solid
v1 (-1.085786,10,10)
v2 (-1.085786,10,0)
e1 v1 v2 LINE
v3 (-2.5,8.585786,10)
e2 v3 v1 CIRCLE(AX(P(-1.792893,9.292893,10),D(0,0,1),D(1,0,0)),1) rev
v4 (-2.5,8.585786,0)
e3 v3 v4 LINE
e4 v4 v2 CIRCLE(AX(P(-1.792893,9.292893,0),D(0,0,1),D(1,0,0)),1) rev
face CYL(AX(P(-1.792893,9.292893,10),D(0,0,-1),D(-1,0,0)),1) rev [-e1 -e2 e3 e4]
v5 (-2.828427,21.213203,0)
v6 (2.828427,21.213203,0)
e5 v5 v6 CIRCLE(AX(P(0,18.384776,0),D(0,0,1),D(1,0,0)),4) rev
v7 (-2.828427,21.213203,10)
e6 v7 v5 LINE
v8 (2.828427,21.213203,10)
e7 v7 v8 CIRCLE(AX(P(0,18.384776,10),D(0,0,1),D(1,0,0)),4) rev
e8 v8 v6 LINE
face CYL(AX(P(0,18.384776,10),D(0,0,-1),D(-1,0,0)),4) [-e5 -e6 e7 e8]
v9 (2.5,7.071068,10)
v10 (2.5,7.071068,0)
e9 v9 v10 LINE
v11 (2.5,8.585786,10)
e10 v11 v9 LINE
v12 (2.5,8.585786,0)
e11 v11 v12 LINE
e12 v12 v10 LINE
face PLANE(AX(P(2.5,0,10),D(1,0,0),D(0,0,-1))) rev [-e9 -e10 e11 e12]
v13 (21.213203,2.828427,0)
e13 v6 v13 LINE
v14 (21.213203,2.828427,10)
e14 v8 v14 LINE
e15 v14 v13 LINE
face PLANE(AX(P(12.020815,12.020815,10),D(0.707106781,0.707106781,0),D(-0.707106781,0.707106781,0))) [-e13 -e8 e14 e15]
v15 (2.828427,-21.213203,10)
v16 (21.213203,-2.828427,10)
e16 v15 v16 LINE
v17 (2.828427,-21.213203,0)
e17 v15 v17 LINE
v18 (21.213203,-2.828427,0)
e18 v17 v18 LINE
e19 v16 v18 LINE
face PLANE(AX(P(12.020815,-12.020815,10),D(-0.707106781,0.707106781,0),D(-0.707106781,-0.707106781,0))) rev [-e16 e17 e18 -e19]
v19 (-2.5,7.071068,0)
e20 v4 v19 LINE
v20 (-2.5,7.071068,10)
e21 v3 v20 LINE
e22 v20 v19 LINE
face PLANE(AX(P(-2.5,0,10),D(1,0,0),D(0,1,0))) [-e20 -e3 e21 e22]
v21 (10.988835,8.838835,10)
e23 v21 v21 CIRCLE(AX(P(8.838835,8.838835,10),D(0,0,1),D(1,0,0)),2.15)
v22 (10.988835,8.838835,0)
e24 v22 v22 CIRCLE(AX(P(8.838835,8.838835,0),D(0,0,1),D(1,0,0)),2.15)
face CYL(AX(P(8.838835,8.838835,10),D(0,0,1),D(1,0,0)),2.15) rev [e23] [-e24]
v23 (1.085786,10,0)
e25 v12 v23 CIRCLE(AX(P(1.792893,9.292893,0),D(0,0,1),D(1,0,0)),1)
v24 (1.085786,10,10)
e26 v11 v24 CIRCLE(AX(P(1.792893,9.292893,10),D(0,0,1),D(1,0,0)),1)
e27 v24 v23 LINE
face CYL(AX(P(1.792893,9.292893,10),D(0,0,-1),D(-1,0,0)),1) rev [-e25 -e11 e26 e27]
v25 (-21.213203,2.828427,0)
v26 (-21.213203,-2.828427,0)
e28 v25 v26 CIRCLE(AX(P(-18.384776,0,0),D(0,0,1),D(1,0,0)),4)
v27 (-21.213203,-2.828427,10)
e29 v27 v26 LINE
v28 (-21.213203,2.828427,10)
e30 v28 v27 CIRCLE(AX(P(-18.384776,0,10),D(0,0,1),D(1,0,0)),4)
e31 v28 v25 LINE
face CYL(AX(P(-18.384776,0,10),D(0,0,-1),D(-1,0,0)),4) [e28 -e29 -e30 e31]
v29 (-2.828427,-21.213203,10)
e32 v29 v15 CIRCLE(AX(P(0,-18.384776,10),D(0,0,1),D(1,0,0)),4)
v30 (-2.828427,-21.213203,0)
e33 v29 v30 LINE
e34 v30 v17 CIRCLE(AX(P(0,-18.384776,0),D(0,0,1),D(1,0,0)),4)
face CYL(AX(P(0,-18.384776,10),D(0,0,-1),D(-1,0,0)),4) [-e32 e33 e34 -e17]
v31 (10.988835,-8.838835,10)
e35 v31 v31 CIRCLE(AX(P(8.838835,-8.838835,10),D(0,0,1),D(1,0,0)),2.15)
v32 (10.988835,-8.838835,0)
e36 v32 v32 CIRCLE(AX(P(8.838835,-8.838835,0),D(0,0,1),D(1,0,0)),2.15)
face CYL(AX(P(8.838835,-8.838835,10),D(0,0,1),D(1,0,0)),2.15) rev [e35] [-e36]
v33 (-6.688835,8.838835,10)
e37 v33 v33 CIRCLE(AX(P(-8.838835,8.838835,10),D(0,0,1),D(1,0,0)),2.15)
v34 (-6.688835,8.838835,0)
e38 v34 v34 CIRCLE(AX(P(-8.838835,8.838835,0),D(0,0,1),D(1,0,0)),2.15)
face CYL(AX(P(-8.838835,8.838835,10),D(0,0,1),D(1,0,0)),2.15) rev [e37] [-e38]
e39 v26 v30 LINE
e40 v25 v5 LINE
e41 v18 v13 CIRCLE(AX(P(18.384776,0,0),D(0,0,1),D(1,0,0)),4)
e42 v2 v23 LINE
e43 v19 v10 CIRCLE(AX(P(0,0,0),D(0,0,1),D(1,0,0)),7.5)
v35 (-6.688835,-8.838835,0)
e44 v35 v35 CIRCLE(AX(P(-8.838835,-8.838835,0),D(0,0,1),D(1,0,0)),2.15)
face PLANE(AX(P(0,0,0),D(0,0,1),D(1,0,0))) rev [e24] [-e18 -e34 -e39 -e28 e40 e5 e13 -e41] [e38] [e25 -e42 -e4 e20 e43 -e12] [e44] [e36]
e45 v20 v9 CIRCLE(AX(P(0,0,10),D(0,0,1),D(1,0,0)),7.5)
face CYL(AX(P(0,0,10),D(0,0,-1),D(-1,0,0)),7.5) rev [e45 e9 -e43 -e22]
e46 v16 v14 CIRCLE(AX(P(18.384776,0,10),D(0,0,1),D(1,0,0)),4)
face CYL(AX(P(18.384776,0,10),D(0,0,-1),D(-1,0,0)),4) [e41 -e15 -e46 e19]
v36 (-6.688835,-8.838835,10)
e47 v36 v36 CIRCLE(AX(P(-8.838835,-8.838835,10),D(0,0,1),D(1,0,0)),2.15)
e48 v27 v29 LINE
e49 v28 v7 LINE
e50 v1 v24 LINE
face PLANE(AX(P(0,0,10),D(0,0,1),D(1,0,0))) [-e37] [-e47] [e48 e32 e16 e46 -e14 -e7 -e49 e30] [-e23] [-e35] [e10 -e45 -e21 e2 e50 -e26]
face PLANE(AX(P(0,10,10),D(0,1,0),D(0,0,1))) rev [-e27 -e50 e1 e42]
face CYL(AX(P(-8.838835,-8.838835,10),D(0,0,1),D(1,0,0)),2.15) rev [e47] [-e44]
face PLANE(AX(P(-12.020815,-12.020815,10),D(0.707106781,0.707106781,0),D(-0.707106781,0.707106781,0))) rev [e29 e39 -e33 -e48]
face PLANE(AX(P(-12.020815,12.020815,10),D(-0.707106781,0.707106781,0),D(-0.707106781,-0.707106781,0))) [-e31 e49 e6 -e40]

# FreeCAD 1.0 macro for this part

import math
import FreeCAD as App
import Part
import Sketcher
from FreeCAD import Vector

doc = App.newDocument("Part")
body = doc.addObject("PartDesign::Body", "Body")

# Sketch on XY plane
sketch1 = body.newObject("Sketcher::SketchObject", "Sketch")
sketch1.AttachmentSupport = (doc.getObject("XY_Plane"), [""])
sketch1.MapMode = "FlatFace"
sketch1.addGeometry(Part.LineSegment(Vector(-21.2, -2.8, 0), Vector(-2.8, -21.2, 0)), False)
sketch1.addGeometry(Part.ArcOfCircle(Part.Circle(Vector(0, -18.4, 0), Vector(0, 0, 1), 4), math.radians(-135), math.radians(-45)), False)
sketch1.addGeometry(Part.LineSegment(Vector(2.8, -21.2, 0), Vector(21.2, -2.8, 0)), False)
sketch1.addGeometry(Part.ArcOfCircle(Part.Circle(Vector(18.4, 0, 0), Vector(0, 0, 1), 4), math.radians(-45), math.radians(45)), False)
sketch1.addGeometry(Part.LineSegment(Vector(21.2, 2.8, 0), Vector(2.8, 21.2, 0)), False)
sketch1.addGeometry(Part.ArcOfCircle(Part.Circle(Vector(0, 18.4, 0), Vector(0, 0, 1), 4), math.radians(45), math.radians(135)), False)
sketch1.addGeometry(Part.LineSegment(Vector(-2.8, 21.2, 0), Vector(-21.2, 2.8, 0)), False)
sketch1.addGeometry(Part.ArcOfCircle(Part.Circle(Vector(-18.4, 0, 0), Vector(0, 0, 1), 4), math.radians(135), math.radians(225)), False)
sketch1.addGeometry(Part.LineSegment(Vector(-2.5, 7.1, 0), Vector(-2.5, 8.6, 0)), False)
sketch1.addGeometry(Part.ArcOfCircle(Part.Circle(Vector(-1.8, 9.3, 0), Vector(0, 0, 1), 1), math.radians(45), math.radians(225)), False)
sketch1.addGeometry(Part.LineSegment(Vector(-1.1, 10, 0), Vector(1.1, 10, 0)), False)
sketch1.addGeometry(Part.ArcOfCircle(Part.Circle(Vector(1.8, 9.3, 0), Vector(0, 0, 1), 1), math.radians(-45), math.radians(135)), False)
sketch1.addGeometry(Part.LineSegment(Vector(2.5, 8.6, 0), Vector(2.5, 7.1, 0)), False)
sketch1.addGeometry(Part.ArcOfCircle(Part.Circle(Vector(0, 0, 0), Vector(0, 0, 1), 7.5), math.radians(109), math.radians(431)), False)
sketch1.addConstraint(Sketcher.Constraint("Tangent", 0, 2, 1, 1))
sketch1.addConstraint(Sketcher.Constraint("Tangent", 1, 2, 2, 1))
sketch1.addConstraint(Sketcher.Constraint("Tangent", 2, 2, 3, 1))
sketch1.addConstraint(Sketcher.Constraint("Tangent", 3, 2, 4, 1))
sketch1.addConstraint(Sketcher.Constraint("Tangent", 4, 2, 5, 1))
sketch1.addConstraint(Sketcher.Constraint("Tangent", 5, 2, 6, 1))
sketch1.addConstraint(Sketcher.Constraint("Tangent", 6, 2, 7, 1))
sketch1.addConstraint(Sketcher.Constraint("Tangent", 7, 2, 0, 1))
sketch1.addConstraint(Sketcher.Constraint("Coincident", 8, 2, 9, 2))
sketch1.addConstraint(Sketcher.Constraint("Coincident", 9, 1, 10, 1))
sketch1.addConstraint(Sketcher.Constraint("Coincident", 10, 2, 11, 2))
sketch1.addConstraint(Sketcher.Constraint("Coincident", 11, 1, 12, 1))
sketch1.addConstraint(Sketcher.Constraint("Coincident", 12, 2, 13, 2))
sketch1.addConstraint(Sketcher.Constraint("Coincident", 13, 1, 8, 1))
sketch1.addConstraint(Sketcher.Constraint("Vertical", 8))
sketch1.addConstraint(Sketcher.Constraint("Horizontal", 10))
sketch1.addConstraint(Sketcher.Constraint("Vertical", 12))
sketch1.addConstraint(Sketcher.Constraint("Coincident", 13, 3, -1, 1))
sketch1.addConstraint(Sketcher.Constraint("Equal", 1, 3))
sketch1.addConstraint(Sketcher.Constraint("Equal", 3, 5))
sketch1.addConstraint(Sketcher.Constraint("Equal", 5, 7))
sketch1.addConstraint(Sketcher.Constraint("Equal", 9, 11))
sketch1.addConstraint(Sketcher.Constraint("Symmetric", 1, 3, 5, 3, -1, 1))
sketch1.addConstraint(Sketcher.Constraint("Symmetric", 3, 3, 7, 3, -1, 1))
sketch1.addConstraint(Sketcher.Constraint("Symmetric", 9, 3, 11, 3, -2))
sketch1.addConstraint(Sketcher.Constraint("Symmetric", 0, 2, 1, 2, -2))
sketch1.addConstraint(Sketcher.Constraint("Perpendicular", 0, 2))
sketch1.addConstraint(Sketcher.Constraint("Horizontal", 8, 2, 11, 1))
sketch1.addConstraint(Sketcher.Constraint("Radius", 1, 4.0))
sketch1.addConstraint(Sketcher.Constraint("Radius", 9, 1.0))
sketch1.addConstraint(Sketcher.Constraint("Radius", 13, 7.5))
sketch1.addConstraint(Sketcher.Constraint("Distance", 0, 26.0))
sketch1.addConstraint(Sketcher.Constraint("DistanceY", -1, 1, 9, 1, 10.0))
sketch1.addConstraint(Sketcher.Constraint("DistanceX", 8, 2, 11, 1, 5.0))
sketch1.addConstraint(Sketcher.Constraint("DistanceY", 8, 1, 8, 2, 1.514719))
sketch1.addConstraint(Sketcher.Constraint("DistanceX", 9, 3, 3, 3, 20.17767))
pad1 = body.newObject("PartDesign::Pad", "Pad")
pad1.Profile = sketch1
pad1.Length = 10

# Sketch on XY plane
sketch2 = body.newObject("Sketcher::SketchObject", "Sketch001")
sketch2.AttachmentSupport = (doc.getObject("XY_Plane"), [""])
sketch2.MapMode = "FlatFace"
sketch2.AttachmentOffset = App.Placement(Vector(0, 0, 10), App.Rotation())
sketch2.addGeometry(Part.Circle(Vector(-8.8, 8.8, 0), Vector(0, 0, 1), 2.1), False)
sketch2.addGeometry(Part.Circle(Vector(8.8, 8.8, 0), Vector(0, 0, 1), 2.1), False)
sketch2.addGeometry(Part.Circle(Vector(8.8, -8.8, 0), Vector(0, 0, 1), 2.1), False)
sketch2.addGeometry(Part.Circle(Vector(-8.8, -8.8, 0), Vector(0, 0, 1), 2.1), False)
sketch2.addConstraint(Sketcher.Constraint("Equal", 0, 1))
sketch2.addConstraint(Sketcher.Constraint("Equal", 1, 2))
sketch2.addConstraint(Sketcher.Constraint("Equal", 2, 3))
sketch2.addConstraint(Sketcher.Constraint("Symmetric", 0, 3, 2, 3, -1, 1))
sketch2.addConstraint(Sketcher.Constraint("Symmetric", 1, 3, 3, 3, -1, 1))
sketch2.addConstraint(Sketcher.Constraint("Symmetric", 0, 3, 1, 3, -2))
sketch2.addConstraint(Sketcher.Constraint("Diameter", 0, 4.3))
sketch2.addConstraint(Sketcher.Constraint("DistanceX", 0, 3, 1, 3, 17.67767))
sketch2.addConstraint(Sketcher.Constraint("DistanceY", 2, 3, 1, 3, 17.67767))
doc.recompute()
hole = body.newObject("PartDesign::Hole", "Hole")
hole.Profile = sketch2
hole.ThreadType = "None"
hole.Diameter = 4.3
hole.DepthType = "ThroughAll"

doc.recompute()
